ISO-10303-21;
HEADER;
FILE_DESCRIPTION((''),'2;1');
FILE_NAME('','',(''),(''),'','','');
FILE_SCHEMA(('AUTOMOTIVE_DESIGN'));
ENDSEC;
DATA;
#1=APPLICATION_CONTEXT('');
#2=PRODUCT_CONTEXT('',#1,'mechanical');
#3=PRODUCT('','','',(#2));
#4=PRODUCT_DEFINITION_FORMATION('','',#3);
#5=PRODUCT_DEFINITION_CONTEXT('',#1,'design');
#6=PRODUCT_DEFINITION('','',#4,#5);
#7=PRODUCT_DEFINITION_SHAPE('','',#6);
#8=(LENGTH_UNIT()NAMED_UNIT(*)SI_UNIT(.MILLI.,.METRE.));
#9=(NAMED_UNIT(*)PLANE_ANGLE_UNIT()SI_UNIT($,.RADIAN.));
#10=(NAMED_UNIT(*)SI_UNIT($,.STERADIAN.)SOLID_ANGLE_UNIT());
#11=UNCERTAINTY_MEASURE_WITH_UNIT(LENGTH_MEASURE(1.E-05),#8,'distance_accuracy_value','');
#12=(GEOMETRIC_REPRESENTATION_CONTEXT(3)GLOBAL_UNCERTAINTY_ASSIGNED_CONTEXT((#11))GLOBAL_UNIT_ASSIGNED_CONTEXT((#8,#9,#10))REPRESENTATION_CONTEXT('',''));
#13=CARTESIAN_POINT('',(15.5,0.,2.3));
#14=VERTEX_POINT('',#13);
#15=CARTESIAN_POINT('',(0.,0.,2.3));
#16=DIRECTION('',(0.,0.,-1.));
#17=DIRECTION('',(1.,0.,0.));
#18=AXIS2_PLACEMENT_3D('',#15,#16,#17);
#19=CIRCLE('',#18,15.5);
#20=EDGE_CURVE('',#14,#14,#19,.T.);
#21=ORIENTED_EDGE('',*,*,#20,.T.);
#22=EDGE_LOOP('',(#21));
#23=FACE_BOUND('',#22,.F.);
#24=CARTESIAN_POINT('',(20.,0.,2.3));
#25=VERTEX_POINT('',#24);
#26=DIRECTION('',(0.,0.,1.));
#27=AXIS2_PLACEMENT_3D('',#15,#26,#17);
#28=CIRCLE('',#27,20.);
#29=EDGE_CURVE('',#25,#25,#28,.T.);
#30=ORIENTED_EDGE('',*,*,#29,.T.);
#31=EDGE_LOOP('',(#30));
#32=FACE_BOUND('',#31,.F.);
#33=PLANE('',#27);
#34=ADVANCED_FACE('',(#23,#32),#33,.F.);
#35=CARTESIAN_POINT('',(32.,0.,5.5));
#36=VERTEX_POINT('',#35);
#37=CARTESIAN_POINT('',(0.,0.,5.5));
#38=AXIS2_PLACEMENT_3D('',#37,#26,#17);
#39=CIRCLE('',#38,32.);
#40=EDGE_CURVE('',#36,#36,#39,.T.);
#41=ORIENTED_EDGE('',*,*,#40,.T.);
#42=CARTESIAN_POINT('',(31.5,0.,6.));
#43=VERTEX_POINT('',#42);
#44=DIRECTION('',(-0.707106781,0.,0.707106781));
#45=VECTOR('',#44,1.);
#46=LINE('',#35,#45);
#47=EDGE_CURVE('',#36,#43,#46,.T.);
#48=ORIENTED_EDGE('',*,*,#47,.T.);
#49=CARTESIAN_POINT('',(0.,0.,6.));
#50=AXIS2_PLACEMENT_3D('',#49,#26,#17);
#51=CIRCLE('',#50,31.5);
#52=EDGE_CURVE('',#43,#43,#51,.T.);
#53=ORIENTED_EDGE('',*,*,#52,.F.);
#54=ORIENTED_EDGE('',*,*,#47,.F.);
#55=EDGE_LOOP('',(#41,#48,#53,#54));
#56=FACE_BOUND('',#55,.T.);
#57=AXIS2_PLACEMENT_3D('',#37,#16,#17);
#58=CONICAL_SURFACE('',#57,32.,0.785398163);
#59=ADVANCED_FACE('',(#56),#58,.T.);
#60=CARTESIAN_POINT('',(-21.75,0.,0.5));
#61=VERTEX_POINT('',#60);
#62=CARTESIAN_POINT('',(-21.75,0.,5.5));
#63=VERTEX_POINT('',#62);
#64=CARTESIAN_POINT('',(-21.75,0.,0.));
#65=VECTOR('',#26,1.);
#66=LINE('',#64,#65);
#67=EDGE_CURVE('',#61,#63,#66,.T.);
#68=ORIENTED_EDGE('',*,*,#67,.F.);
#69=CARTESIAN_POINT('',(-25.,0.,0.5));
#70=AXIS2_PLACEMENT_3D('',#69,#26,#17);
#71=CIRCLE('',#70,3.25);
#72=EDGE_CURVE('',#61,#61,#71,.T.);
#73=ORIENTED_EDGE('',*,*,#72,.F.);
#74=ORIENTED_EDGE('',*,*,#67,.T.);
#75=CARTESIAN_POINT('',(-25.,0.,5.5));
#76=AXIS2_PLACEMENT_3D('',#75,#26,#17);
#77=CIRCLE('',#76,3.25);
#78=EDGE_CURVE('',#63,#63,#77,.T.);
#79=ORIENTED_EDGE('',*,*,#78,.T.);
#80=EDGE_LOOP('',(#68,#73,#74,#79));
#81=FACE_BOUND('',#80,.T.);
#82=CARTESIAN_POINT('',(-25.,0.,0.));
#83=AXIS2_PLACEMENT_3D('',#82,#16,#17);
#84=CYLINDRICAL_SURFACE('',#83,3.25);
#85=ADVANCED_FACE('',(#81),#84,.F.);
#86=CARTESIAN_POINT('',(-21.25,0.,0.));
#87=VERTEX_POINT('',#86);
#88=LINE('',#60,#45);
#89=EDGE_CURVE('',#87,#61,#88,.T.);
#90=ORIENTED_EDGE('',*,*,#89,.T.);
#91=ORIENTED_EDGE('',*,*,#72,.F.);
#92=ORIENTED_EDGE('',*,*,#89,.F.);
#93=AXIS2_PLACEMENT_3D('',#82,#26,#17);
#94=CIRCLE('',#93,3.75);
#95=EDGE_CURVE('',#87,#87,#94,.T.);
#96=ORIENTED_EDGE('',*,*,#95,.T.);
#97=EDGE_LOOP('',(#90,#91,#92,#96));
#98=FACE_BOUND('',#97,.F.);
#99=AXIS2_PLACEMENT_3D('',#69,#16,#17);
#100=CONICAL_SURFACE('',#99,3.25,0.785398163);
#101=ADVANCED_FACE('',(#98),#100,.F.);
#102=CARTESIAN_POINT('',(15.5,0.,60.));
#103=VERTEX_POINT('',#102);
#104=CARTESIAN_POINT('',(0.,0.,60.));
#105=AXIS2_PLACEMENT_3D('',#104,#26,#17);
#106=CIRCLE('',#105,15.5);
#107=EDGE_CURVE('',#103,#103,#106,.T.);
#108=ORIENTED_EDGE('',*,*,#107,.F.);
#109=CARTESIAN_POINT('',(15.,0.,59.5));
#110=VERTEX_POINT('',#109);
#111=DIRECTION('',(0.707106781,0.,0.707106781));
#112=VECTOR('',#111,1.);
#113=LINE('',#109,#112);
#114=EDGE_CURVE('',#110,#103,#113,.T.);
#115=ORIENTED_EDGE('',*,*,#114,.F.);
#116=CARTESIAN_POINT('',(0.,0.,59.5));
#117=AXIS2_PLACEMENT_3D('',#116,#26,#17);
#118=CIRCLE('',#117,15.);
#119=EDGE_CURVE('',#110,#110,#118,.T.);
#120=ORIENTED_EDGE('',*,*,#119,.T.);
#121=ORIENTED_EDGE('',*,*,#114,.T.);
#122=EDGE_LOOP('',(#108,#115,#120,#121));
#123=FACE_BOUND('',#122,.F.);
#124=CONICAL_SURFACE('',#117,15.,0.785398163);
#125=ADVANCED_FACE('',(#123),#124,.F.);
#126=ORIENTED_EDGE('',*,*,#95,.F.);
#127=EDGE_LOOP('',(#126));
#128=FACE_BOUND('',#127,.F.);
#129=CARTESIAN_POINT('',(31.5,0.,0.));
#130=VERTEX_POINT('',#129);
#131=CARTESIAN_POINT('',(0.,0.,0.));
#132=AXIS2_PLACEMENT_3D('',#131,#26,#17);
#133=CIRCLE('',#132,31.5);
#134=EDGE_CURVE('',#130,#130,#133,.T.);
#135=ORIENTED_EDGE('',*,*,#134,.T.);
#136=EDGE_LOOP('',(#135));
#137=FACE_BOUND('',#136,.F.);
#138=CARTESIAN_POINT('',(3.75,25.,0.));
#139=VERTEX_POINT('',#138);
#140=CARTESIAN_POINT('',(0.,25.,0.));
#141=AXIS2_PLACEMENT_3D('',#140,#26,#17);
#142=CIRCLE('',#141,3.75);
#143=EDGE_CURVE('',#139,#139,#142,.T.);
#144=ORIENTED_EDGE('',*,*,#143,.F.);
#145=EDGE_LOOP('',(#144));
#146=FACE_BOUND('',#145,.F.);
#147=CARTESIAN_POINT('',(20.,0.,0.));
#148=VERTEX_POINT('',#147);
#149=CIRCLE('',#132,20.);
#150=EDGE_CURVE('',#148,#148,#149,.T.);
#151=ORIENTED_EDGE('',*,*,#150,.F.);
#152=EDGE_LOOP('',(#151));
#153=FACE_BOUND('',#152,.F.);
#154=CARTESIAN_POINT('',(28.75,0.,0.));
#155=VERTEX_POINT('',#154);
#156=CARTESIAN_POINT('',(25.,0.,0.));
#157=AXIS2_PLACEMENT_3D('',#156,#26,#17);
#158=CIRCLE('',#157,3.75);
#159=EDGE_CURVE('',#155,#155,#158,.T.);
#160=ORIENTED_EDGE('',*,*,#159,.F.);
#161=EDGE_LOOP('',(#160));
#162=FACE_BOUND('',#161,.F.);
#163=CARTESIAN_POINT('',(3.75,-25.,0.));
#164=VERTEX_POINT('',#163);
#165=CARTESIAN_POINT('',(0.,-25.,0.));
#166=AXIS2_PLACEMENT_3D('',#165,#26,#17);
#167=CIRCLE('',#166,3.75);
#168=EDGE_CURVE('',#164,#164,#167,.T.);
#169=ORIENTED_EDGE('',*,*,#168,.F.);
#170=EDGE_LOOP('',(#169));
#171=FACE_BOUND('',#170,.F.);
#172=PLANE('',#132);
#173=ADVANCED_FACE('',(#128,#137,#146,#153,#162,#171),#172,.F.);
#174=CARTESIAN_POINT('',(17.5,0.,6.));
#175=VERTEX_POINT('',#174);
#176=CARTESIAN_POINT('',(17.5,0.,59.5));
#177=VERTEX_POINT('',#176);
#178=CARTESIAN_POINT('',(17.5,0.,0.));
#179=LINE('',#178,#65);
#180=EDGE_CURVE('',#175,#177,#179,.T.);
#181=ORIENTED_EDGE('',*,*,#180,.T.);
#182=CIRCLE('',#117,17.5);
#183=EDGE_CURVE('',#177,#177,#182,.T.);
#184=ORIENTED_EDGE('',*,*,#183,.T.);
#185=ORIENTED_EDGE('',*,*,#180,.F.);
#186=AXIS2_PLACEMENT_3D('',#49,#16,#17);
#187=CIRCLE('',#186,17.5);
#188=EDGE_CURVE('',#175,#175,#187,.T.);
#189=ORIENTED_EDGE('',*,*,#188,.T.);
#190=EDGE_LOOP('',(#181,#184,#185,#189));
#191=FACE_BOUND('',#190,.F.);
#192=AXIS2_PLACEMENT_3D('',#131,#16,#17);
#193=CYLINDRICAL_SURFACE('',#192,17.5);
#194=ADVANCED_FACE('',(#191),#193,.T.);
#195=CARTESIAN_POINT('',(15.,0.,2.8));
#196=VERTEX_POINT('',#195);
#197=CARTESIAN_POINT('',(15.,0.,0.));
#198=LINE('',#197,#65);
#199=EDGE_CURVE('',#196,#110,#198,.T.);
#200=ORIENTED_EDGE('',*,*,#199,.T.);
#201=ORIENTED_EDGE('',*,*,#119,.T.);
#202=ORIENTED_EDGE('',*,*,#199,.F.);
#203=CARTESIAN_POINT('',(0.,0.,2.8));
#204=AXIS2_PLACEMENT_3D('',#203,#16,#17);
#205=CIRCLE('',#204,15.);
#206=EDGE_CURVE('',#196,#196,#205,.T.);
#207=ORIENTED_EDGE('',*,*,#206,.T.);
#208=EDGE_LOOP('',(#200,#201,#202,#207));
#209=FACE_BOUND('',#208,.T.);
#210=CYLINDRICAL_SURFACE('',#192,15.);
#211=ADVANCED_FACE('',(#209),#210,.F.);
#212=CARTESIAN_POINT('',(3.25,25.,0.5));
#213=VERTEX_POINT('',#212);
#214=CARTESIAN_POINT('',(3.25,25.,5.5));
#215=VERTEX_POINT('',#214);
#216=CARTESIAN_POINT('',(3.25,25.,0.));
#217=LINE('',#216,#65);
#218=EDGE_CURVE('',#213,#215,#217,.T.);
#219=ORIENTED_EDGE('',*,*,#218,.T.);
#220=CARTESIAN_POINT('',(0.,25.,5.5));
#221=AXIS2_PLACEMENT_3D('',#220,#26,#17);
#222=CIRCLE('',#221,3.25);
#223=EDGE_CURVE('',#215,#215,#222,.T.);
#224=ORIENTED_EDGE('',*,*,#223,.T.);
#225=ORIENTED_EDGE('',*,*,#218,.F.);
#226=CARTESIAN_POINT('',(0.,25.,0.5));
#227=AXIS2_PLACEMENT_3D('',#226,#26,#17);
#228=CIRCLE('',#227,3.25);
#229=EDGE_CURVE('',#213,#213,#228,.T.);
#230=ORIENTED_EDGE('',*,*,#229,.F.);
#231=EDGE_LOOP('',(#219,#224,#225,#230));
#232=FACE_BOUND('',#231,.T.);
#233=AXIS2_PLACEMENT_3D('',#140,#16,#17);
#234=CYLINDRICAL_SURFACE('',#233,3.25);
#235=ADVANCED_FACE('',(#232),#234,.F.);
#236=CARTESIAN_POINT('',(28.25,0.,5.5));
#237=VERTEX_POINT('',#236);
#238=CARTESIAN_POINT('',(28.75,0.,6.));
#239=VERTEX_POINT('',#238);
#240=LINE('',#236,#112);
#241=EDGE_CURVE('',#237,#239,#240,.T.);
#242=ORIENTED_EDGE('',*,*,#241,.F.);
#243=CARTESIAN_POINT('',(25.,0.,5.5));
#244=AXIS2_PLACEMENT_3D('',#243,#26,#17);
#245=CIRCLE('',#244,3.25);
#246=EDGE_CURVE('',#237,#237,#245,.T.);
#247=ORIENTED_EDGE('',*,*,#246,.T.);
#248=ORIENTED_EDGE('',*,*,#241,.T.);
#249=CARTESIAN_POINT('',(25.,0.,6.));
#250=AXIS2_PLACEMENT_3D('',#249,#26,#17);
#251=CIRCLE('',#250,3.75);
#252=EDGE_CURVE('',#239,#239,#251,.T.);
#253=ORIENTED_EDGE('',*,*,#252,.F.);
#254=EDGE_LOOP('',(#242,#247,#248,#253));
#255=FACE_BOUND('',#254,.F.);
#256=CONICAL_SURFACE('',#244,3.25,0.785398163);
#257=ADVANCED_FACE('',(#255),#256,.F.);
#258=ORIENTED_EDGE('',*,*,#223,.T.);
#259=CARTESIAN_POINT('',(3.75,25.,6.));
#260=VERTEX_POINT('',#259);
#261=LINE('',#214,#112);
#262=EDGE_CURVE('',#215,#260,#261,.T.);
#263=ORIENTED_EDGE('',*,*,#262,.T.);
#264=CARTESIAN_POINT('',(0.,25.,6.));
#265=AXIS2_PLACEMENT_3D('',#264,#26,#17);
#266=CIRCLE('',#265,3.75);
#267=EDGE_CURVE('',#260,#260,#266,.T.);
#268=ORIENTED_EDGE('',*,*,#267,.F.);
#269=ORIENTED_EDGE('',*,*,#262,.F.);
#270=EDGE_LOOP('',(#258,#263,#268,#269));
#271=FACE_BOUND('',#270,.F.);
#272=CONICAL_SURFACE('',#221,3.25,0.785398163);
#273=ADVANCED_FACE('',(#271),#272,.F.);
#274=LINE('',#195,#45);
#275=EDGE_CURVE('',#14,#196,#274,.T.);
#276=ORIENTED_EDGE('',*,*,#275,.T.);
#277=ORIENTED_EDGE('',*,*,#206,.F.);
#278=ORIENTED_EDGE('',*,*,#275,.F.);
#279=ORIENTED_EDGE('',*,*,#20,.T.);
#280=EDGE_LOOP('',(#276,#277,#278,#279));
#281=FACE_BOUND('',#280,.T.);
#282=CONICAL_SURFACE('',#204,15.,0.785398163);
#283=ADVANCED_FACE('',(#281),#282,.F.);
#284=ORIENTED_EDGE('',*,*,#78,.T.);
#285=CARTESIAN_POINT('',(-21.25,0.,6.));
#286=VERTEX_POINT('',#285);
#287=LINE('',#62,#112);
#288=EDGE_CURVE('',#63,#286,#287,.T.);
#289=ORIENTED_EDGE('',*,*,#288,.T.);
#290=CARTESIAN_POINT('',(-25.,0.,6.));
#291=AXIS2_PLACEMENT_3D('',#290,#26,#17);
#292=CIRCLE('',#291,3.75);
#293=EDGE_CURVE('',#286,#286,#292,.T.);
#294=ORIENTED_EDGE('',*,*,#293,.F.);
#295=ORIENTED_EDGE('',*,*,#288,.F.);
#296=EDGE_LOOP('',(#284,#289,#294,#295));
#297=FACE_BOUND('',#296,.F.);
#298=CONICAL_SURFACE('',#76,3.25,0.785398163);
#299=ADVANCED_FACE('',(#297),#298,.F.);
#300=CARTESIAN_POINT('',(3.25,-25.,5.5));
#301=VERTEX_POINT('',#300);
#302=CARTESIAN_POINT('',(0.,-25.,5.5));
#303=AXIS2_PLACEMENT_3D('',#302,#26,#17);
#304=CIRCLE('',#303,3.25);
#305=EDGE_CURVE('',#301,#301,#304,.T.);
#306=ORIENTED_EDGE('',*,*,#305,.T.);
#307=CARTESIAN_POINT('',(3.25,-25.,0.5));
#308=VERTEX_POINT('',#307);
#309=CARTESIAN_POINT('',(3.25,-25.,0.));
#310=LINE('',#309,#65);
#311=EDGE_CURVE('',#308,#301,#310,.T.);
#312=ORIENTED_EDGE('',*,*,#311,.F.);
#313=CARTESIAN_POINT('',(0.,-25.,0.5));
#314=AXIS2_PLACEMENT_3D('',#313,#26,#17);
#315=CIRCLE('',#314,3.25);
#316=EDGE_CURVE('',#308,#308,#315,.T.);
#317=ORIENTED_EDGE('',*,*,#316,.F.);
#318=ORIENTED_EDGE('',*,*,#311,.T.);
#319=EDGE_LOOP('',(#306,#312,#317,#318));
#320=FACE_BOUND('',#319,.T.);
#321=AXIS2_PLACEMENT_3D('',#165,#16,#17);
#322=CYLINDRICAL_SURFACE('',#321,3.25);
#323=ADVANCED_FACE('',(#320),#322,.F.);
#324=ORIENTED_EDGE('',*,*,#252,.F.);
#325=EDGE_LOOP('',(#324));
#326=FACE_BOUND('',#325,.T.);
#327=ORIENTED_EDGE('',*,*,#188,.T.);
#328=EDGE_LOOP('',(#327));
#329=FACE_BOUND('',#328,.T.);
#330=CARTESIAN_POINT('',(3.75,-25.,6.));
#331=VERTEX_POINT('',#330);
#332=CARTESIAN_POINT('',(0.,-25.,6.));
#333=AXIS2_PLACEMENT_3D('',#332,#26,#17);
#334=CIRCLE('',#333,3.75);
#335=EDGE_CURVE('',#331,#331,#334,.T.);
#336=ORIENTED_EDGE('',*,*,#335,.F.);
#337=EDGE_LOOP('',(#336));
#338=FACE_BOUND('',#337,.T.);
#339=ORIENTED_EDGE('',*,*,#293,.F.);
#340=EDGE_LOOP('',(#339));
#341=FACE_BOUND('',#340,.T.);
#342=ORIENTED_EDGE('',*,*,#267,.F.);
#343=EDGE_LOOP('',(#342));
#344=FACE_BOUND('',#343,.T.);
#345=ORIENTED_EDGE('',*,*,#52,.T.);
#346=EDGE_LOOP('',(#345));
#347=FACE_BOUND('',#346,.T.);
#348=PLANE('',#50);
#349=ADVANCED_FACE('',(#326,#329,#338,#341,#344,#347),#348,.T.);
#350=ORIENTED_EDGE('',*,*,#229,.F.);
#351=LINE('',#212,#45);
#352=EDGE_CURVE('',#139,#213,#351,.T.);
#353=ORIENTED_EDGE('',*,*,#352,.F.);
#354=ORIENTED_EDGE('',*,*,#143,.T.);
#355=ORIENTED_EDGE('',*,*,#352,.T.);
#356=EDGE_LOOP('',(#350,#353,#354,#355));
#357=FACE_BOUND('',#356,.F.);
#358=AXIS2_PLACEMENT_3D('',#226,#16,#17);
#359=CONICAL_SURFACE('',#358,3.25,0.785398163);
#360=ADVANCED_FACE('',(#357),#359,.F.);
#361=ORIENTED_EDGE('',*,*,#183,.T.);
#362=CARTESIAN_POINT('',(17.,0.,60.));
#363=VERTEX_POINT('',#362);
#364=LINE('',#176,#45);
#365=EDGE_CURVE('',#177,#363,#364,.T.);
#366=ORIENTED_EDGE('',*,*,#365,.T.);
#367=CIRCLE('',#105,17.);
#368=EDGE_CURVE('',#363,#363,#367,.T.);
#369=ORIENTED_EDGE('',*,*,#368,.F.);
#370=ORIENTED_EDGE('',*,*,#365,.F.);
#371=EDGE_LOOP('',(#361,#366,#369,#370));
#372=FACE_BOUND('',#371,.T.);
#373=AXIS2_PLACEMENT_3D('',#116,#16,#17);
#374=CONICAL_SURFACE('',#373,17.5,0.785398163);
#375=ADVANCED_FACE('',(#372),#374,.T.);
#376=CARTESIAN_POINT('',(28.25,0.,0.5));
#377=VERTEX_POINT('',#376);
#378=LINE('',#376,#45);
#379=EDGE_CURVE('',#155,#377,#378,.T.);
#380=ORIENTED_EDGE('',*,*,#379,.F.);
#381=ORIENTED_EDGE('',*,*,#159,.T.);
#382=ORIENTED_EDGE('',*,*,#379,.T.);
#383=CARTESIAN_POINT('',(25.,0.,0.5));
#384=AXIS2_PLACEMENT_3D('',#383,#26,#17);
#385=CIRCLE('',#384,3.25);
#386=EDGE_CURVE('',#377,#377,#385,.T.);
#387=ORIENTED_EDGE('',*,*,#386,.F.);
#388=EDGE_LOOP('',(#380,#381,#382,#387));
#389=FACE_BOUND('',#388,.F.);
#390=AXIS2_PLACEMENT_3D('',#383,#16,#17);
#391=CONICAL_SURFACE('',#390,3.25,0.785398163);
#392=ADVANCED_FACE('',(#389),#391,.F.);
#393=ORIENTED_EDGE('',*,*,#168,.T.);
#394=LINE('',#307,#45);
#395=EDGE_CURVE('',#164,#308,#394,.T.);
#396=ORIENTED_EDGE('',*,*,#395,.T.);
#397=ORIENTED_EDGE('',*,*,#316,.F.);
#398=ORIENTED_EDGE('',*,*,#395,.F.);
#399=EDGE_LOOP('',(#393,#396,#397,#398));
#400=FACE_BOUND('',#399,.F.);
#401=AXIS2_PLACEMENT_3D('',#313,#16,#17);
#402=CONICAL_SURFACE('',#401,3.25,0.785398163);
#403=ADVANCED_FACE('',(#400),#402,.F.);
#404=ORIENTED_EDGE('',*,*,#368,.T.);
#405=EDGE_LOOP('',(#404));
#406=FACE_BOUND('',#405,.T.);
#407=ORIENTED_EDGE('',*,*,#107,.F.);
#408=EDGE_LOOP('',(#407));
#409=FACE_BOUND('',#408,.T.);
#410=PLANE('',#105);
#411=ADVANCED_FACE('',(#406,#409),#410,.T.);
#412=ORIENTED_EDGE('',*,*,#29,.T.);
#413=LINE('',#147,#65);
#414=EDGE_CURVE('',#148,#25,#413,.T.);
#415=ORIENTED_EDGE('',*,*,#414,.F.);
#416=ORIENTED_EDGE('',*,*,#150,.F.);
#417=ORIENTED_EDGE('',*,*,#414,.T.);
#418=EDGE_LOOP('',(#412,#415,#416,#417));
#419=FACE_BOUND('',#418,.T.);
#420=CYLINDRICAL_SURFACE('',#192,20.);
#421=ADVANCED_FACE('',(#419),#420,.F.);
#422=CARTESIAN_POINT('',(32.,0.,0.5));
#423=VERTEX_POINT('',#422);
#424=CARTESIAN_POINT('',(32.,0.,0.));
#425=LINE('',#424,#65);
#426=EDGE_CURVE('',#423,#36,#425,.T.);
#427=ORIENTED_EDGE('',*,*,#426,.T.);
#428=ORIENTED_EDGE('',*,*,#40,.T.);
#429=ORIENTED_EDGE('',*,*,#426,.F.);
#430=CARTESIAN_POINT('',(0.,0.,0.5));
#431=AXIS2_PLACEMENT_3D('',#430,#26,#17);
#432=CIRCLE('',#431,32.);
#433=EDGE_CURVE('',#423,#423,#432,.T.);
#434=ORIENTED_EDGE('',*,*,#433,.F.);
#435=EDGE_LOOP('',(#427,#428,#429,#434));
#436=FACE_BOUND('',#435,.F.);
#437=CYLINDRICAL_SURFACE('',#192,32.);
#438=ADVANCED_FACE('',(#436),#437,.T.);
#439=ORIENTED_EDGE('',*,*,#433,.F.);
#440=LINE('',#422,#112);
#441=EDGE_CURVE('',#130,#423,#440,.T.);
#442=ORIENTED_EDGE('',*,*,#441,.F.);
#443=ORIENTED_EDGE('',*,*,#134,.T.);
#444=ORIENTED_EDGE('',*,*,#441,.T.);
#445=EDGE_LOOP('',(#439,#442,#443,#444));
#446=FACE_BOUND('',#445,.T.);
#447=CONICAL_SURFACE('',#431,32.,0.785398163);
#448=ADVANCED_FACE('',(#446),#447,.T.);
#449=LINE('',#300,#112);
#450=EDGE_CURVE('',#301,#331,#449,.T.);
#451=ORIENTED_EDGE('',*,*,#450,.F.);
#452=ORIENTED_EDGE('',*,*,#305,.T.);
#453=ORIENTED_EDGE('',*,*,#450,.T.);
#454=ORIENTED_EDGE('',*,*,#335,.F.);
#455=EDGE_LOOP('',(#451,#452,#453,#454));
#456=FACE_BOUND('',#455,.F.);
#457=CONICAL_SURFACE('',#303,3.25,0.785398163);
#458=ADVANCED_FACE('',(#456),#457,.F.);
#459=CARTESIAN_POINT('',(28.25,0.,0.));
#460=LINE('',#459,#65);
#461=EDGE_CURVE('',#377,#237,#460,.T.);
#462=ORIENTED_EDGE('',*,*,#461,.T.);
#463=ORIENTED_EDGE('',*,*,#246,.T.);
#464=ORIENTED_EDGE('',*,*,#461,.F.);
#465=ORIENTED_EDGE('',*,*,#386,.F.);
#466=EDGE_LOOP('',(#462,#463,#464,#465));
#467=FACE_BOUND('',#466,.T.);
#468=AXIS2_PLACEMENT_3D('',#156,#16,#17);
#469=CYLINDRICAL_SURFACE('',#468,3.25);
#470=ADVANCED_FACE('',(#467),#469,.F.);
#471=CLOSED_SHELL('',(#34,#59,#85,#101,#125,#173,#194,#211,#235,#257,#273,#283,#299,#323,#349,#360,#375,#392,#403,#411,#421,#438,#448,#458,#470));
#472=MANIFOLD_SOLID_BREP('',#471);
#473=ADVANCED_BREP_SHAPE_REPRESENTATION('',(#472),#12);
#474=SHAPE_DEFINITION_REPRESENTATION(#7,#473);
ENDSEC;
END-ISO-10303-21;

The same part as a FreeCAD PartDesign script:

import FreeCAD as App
import Part
import Sketcher

V = App.Vector
Q = App.Units.Quantity


def edges_at(feature, points):
    """Names of the edges that pass closest to the given points."""
    edges = feature.Shape.Edges
    near = lambda p: min(range(len(edges)), key=lambda i: edges[i].distToShape(Part.Vertex(*p))[0])
    return sorted({f"Edge{near(p) + 1}" for p in points})

doc = App.newDocument("Part")
body = doc.addObject("PartDesign::Body", "Body")

# Sketch on XY plane
sketch1 = body.newObject("Sketcher::SketchObject", "Sketch")
sketch1.AttachmentSupport = (doc.getObject("XY_Plane"), [""])
sketch1.MapMode = "FlatFace"
sketch1.addGeometry([
    Part.Circle(V(0, 0, 0), V(0, 0, 1), 32),  # 0
    Part.Circle(V(0, -25, 0), V(0, 0, 1), 3.25),  # 1
    Part.Circle(V(-25, 0, 0), V(0, 0, 1), 3.25),  # 2
    Part.Circle(V(25, 0, 0), V(0, 0, 1), 3.25),  # 3
    Part.Circle(V(0, 25, 0), V(0, 0, 1), 3.25),  # 4
    Part.Circle(V(0, 0, 0), V(0, 0, 1), 15),  # 5
], False)
sketch1.addConstraint([
    Sketcher.Constraint("Coincident", 0, 3, -1, 1),
    Sketcher.Constraint("Coincident", 5, 3, -1, 1),
    Sketcher.Constraint("Equal", 1, 2),
    Sketcher.Constraint("Equal", 2, 3),
    Sketcher.Constraint("Equal", 3, 4),
    Sketcher.Constraint("Symmetric", 2, 3, 3, 3, -1, 1),
    Sketcher.Constraint("Symmetric", 1, 3, 4, 3, -1, 1),
    Sketcher.Constraint("PointOnObject", 1, 3, -2),
    Sketcher.Constraint("PointOnObject", 2, 3, -1),
    Sketcher.Constraint("Diameter", 0, Q("64 mm")),
    Sketcher.Constraint("Diameter", 5, Q("30 mm")),
    Sketcher.Constraint("Diameter", 1, Q("6.5 mm")),
    Sketcher.Constraint("DistanceY", 1, 3, -1, 1, Q("25 mm")),
    Sketcher.Constraint("DistanceX", 2, 3, -1, 1, Q("25 mm")),
])
pad1 = body.newObject("PartDesign::Pad", "Pad")
pad1.Profile = sketch1
pad1.Length = 6

# Sketch on XY plane
sketch2 = body.newObject("Sketcher::SketchObject", "Sketch001")
sketch2.AttachmentSupport = (doc.getObject("XY_Plane"), [""])
sketch2.MapMode = "FlatFace"
sketch2.addGeometry([
    Part.Circle(V(0, 0, 0), V(0, 0, 1), 17.5),
    Part.Circle(V(0, 0, 0), V(0, 0, 1), 15),
], False)
sketch2.addConstraint([
    Sketcher.Constraint("Coincident", 0, 3, -1, 1),
    Sketcher.Constraint("Coincident", 1, 3, -1, 1),
    Sketcher.Constraint("Diameter", 0, Q("35 mm")),
    Sketcher.Constraint("Diameter", 1, Q("30 mm")),
])
pad2 = body.newObject("PartDesign::Pad", "Pad001")
pad2.Profile = sketch2
pad2.Length = 60

# Sketch on XY plane
sketch3 = body.newObject("Sketcher::SketchObject", "Sketch002")
sketch3.AttachmentSupport = (doc.getObject("XY_Plane"), [""])
sketch3.MapMode = "FlatFace"
sketch3.addGeometry(Part.Circle(V(0, 0, 0), V(0, 0, 1), 20), False)
sketch3.addConstraint([
    Sketcher.Constraint("Coincident", 0, 3, -1, 1),
    Sketcher.Constraint("Diameter", 0, Q("40 mm")),
])
pocket1 = body.newObject("PartDesign::Pocket", "Pocket")
pocket1.Profile = sketch3
pocket1.Length = 2.3
pocket1.Reversed = True
doc.recompute()

chamfer = body.newObject("PartDesign::Chamfer", "Chamfer")
chamfer.Base = (pocket1, edges_at(pocket1, [
    (-32, 0, 0),
    (-32, 0, 6),
    (-17.5, 0, 60),
    (-15, 0, 60),
    (-15, 0, 2.3),
    (-3.25, -25, 0),
    (-28.25, 0, 0),
    (-3.25, 25, 0),
    (21.75, 0, 0),
    (-28.25, 0, 6),
    (-3.25, -25, 6),
    (21.75, 0, 6),
    (-3.25, 25, 6),
]))
chamfer.Size = 0.5

doc.recompute()
